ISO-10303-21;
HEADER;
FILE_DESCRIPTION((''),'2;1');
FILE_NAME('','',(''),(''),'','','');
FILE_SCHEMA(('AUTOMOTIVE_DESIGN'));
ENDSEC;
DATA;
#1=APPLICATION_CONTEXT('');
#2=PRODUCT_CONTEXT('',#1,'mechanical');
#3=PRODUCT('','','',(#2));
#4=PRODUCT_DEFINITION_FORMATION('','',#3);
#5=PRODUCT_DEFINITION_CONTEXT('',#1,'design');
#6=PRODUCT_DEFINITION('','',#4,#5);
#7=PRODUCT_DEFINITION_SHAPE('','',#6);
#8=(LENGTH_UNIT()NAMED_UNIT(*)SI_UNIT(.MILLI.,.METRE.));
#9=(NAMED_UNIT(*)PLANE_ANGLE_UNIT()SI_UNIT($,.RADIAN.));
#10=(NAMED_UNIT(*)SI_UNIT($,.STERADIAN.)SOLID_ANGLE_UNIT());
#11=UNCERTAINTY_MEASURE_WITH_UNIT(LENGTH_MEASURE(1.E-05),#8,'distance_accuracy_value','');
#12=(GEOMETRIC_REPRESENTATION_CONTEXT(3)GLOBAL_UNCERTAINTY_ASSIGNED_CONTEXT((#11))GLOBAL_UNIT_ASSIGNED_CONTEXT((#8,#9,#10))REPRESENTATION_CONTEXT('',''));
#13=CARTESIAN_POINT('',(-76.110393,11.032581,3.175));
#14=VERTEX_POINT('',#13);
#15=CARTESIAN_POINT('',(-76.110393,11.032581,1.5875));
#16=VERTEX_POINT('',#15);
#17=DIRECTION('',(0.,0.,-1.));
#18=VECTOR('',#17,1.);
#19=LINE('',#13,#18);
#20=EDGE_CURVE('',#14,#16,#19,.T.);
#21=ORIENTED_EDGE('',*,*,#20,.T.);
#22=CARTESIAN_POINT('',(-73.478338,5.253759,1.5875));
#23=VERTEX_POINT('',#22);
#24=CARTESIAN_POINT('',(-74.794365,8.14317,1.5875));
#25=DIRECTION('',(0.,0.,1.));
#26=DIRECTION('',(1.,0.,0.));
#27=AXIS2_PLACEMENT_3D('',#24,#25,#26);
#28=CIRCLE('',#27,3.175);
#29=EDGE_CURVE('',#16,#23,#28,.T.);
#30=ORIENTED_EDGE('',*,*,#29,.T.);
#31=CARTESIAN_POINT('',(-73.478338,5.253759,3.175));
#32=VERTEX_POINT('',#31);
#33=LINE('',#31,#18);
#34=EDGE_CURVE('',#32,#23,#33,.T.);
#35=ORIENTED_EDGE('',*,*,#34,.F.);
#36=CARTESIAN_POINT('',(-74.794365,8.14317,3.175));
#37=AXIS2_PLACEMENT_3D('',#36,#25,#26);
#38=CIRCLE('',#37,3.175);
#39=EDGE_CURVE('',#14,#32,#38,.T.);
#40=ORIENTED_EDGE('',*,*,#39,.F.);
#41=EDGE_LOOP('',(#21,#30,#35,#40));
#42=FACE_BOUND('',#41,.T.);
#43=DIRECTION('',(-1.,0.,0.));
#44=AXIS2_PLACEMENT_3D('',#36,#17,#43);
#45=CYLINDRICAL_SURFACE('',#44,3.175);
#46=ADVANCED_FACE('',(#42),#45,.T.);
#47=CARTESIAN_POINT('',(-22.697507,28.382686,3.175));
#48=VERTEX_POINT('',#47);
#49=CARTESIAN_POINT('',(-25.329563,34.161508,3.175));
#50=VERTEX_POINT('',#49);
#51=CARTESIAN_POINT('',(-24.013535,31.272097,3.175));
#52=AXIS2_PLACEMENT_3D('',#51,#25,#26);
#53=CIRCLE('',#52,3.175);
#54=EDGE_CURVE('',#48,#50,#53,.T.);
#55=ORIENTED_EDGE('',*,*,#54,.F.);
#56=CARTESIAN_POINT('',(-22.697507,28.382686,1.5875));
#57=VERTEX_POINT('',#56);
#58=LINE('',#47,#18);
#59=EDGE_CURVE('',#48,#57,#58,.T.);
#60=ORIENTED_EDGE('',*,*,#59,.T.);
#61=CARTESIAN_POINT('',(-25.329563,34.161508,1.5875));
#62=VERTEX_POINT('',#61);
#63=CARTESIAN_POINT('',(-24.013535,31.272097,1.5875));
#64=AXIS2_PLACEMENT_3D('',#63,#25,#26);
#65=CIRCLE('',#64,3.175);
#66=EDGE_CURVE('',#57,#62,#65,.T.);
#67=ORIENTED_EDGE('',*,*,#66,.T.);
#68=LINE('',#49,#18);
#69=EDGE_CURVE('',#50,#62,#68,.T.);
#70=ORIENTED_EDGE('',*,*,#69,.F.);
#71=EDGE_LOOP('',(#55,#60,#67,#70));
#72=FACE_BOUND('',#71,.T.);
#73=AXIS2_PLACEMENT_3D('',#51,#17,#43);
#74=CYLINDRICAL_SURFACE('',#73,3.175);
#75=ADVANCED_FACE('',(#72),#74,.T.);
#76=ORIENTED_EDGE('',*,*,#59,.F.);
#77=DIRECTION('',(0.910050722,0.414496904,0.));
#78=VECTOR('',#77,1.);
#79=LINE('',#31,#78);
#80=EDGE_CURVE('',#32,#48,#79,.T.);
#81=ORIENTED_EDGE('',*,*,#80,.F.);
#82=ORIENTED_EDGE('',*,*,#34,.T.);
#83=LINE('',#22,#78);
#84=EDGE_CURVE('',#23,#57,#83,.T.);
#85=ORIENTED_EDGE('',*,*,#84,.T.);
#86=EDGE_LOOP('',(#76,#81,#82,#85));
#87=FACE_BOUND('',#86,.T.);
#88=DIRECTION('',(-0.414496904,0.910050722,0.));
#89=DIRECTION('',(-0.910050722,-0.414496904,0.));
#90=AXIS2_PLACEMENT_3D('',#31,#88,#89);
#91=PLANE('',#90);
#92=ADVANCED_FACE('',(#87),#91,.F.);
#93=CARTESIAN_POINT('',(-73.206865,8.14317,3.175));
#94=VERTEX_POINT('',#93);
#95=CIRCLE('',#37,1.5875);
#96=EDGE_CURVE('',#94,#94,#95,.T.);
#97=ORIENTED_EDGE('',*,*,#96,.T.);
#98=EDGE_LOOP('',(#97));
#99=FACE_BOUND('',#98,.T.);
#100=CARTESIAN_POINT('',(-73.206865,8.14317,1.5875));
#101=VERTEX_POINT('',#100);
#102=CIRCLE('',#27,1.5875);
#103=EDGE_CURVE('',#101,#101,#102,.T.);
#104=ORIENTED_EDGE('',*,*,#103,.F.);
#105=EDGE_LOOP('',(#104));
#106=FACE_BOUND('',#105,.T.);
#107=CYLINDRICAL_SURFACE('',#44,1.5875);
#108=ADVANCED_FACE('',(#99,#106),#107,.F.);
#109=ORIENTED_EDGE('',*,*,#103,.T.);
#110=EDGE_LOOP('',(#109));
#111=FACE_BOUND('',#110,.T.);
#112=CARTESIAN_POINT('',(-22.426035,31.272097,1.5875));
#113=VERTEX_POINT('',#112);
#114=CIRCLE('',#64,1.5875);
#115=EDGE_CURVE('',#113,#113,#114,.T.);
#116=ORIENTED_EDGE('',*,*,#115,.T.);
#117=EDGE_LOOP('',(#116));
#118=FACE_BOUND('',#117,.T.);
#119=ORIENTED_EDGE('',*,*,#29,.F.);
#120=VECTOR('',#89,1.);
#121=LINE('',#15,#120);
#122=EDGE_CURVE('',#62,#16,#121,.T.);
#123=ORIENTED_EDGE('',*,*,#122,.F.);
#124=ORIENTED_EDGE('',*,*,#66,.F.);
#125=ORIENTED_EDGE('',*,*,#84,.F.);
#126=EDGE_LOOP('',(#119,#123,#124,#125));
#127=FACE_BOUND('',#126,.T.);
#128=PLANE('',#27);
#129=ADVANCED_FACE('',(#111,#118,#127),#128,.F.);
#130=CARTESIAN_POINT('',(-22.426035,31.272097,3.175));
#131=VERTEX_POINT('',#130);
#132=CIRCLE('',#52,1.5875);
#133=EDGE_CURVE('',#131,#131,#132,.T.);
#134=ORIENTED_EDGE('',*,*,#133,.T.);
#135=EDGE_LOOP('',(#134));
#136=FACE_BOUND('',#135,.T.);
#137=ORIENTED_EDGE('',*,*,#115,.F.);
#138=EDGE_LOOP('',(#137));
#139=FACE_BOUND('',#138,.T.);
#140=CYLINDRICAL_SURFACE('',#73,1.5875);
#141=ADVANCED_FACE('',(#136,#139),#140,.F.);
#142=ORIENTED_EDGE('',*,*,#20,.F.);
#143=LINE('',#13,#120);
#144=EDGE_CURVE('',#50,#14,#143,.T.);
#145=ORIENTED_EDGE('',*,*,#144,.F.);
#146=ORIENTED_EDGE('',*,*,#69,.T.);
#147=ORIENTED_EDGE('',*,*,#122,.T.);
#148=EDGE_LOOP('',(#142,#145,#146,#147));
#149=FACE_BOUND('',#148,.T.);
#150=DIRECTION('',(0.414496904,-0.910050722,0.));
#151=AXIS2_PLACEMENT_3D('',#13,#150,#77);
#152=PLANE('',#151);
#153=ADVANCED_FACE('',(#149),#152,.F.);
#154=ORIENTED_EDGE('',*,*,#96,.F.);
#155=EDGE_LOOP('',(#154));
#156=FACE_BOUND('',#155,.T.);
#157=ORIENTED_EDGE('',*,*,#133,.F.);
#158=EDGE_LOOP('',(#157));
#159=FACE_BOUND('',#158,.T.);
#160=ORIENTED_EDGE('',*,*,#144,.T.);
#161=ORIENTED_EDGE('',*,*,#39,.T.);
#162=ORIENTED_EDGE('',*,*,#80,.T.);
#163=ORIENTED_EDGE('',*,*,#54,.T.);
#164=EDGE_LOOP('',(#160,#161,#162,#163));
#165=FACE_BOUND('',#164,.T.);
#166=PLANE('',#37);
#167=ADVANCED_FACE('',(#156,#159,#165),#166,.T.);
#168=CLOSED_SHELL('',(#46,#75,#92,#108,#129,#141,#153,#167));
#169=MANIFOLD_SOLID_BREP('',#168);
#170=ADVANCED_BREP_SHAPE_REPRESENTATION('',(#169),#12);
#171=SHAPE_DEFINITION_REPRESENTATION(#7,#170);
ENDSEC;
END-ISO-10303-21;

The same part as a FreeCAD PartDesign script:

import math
import FreeCAD as App
import Part
import Sketcher
Q = App.Units.Quantity

doc = App.newDocument("Part")
params = doc.addObject("Spreadsheet::Sheet", "Params")
for row, (alias, value) in enumerate([
    ("sketch1_diameter", "0.125 in"),
    ("sketch1_radius", "0.125 in"),
    ("pad1_length", "0.0625 in"),
], start=1):
    params.set(f"A{row}", alias)
    params.set(f"B{row}", "=" + value)
    params.setAlias(f"B{row}", alias)

body = doc.addObject("PartDesign::Body", "Body")

# Sketch on XY plane
sketch1 = doc.addObject("Sketcher::SketchObject", "Sketch")
body.addObject(sketch1)
sketch1.AttachmentSupport = (doc.XY_Plane, [""])
sketch1.MapMode = "FlatFace"
sketch1.AttachmentOffset = App.Placement(App.Vector(0, 0, 0.0625 * 25.4), App.Rotation())
sketch1.addGeometry([
    Part.LineSegment(App.Vector(-25.3, 34.2, 0), App.Vector(-76.1, 11, 0)),  # 0
    Part.ArcOfCircle(Part.Circle(App.Vector(-74.8, 8.1, 0), App.Vector(0, 0, 1), 3.2), math.radians(114), math.radians(294)),  # 1
    Part.LineSegment(App.Vector(-73.5, 5.3, 0), App.Vector(-22.7, 28.4, 0)),  # 2
    Part.ArcOfCircle(Part.Circle(App.Vector(-24, 31.3, 0), App.Vector(0, 0, 1), 3.2), math.radians(-66), math.radians(114)),  # 3
    Part.Circle(App.Vector(-74.8, 8.1, 0), App.Vector(0, 0, 1), 1.6),  # 4
    Part.Circle(App.Vector(-24, 31.3, 0), App.Vector(0, 0, 1), 1.6),  # 5
], False)
sketch1.addConstraint([
    Sketcher.Constraint("Tangent", 0, 2, 1, 1),
    Sketcher.Constraint("Tangent", 1, 2, 2, 1),
    Sketcher.Constraint("Tangent", 2, 2, 3, 1),
    Sketcher.Constraint("Tangent", 3, 2, 0, 1),
    Sketcher.Constraint("Coincident", 4, 3, 1, 3),
    Sketcher.Constraint("Coincident", 5, 3, 3, 3),
    Sketcher.Constraint("Equal", 1, 3),
    Sketcher.Constraint("Equal", 4, 5),
    Sketcher.Constraint("Diameter", 4, Q("0.125 in")),
    Sketcher.Constraint("Radius", 1, Q("0.125 in")),
    Sketcher.Constraint("Distance", 0, Q("55.8 mm")),
    Sketcher.Constraint("DistanceY", -1, 1, 1, 3, Q("8.14317 mm")),
    Sketcher.Constraint("DistanceY", -1, 1, 0, 2, Q("11.032581 mm")),
    Sketcher.Constraint("DistanceX", 1, 3, -1, 1, Q("74.794365 mm")),
])
sketch1.setExpression("Constraints[8]", "Params.sketch1_diameter")
sketch1.setExpression("Constraints[9]", "Params.sketch1_radius")
pad1 = doc.addObject("PartDesign::Pad", "Pad")
body.addObject(pad1)
pad1.Profile = sketch1
pad1.setExpression("Length", "Params.pad1_length")

doc.recompute()
